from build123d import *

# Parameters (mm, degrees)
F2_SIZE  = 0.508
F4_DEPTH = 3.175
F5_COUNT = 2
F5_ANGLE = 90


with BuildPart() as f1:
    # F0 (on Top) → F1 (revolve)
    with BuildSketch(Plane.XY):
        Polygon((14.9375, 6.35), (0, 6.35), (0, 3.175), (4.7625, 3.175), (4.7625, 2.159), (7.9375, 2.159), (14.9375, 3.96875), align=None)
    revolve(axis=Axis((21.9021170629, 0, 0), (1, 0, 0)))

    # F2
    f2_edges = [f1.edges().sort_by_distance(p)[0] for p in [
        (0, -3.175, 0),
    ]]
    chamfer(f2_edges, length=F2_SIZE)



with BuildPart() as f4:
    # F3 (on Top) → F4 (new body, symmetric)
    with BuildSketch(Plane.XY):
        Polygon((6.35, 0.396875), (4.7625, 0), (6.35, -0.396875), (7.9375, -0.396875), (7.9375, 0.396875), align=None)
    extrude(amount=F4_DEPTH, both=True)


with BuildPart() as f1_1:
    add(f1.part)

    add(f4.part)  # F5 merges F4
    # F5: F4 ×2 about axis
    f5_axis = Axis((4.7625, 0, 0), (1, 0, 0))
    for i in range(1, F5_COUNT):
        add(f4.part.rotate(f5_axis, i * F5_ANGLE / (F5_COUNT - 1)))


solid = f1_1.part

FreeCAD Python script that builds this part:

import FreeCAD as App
import Part
import Sketcher

V = App.Vector
Q = App.Units.Quantity


def edges_at(feature, points):
    """Names of the edges that pass closest to the given points."""
    edges = feature.Shape.Edges
    near = lambda p: min(range(len(edges)), key=lambda i: edges[i].distToShape(Part.Vertex(*p))[0])
    return sorted({f"Edge{near(p) + 1}" for p in points})


def add_polygon(sketch, points):
    """Adds a closed chain of lines whose ends are joined by coincident constraints."""
    first, n = sketch.GeometryCount, len(points)
    for a, b in zip(points, points[1:] + points[:1]):
        sketch.addGeometry(Part.LineSegment(App.Vector(*a, 0), App.Vector(*b, 0)), False)
    for i in range(n):
        sketch.addConstraint(Sketcher.Constraint("Coincident", first + i, 2, first + (i + 1) % n, 1))

doc = App.newDocument("Part")
body = doc.addObject("PartDesign::Body", "Body")

# Sketch on XY plane
sketch1 = doc.addObject("Sketcher::SketchObject", "Sketch")
body.addObject(sketch1)
sketch1.AttachmentSupport = (doc.XY_Plane, [""])
sketch1.MapMode = "FlatFace"
add_polygon(sketch1, [(14.9, 6.3), (0, 6.3), (0, 3.2), (4.8, 3.2), (4.8, 2.2), (7.9, 2.2), (14.9, 4)])  # lines 0-6
sketch1.addConstraint([
    Sketcher.Constraint("Horizontal", 0),
    Sketcher.Constraint("Vertical", 1),
    Sketcher.Constraint("Horizontal", 2),
    Sketcher.Constraint("Vertical", 3),
    Sketcher.Constraint("Horizontal", 4),
    Sketcher.Constraint("Vertical", 6),
    Sketcher.Constraint("PointOnObject", 0, 2, -2),
    Sketcher.Constraint("Equal", 4, 1),
    Sketcher.Constraint("DistanceY", 3, 2, 3, 1, Q("0.04 in")),
    Sketcher.Constraint("DistanceX", 2, 1, 2, 2, Q("0.1875 in")),
    Sketcher.Constraint("DistanceX", 4, 1, 4, 2, Q("0.125 in")),
    Sketcher.Constraint("DistanceY", 6, 1, 6, 2, Q("0.09375 in")),
    Sketcher.Constraint("DistanceY", -1, 1, 0, 2, Q("0.25 in")),
    Sketcher.Constraint("DistanceX", 0, 2, 0, 1, 14.9375),
])
revolution = doc.addObject("PartDesign::Revolution", "Revolution")
body.addObject(revolution)
revolution.Profile = sketch1
revolution.ReferenceAxis = (sketch1, ["H_Axis"])
revolution.Angle = 360
doc.recompute()

chamfer = doc.addObject("PartDesign::Chamfer", "Chamfer")
body.addObject(chamfer)
chamfer.Base = (revolution, edges_at(revolution, [(0, -3.175, 0)]))
chamfer.Size = Q("0.02 in")
body2 = doc.addObject("PartDesign::Body", "Body001")

# Sketch on XY plane
sketch2 = doc.addObject("Sketcher::SketchObject", "Sketch001")
body2.addObject(sketch2)
sketch2.AttachmentSupport = (doc.getObject("XY_Plane001"), [""])
sketch2.MapMode = "FlatFace"
add_polygon(sketch2, [(6.3, 0.4), (4.8, 0), (6.3, -0.4), (7.9, -0.4), (7.9, 0.4)])  # lines 0-4
sketch2.addConstraint([
    Sketcher.Constraint("Horizontal", 2),
    Sketcher.Constraint("Vertical", 3),
    Sketcher.Constraint("Horizontal", 4),
    Sketcher.Constraint("Symmetric", 1, 2, 4, 2, -1),
    Sketcher.Constraint("PointOnObject", 0, 2, -1),
    Sketcher.Constraint("DistanceX", 2, 1, 2, 2, Q("0.0625 in")),
    Sketcher.Constraint("DistanceY", 3, 1, 3, 2, Q("0.03125 in")),
    Sketcher.Constraint("DistanceX", -1, 1, 1, 2, Q("0.25 in")),
    Sketcher.Constraint("DistanceX", -1, 1, 0, 2, Q("0.1875 in")),
])
pad1 = doc.addObject("PartDesign::Pad", "Pad")
body2.addObject(pad1)
pad1.Profile = sketch2
pad1.Length = Q("0.25 in")
pad1.Midplane = True
doc.recompute()

body3 = doc.addObject("PartDesign::Body", "Body002")
body3.BaseFeature = body2
boolean = doc.addObject("PartDesign::Boolean", "Boolean")
body.addObject(boolean)
boolean.Type = "Fuse"
boolean.addObjects([body3])
doc.recompute()

body2.Placement = App.Placement(V(0, 0, 0), App.Rotation(V(1, 0, 0), 90))
boolean2 = doc.addObject("PartDesign::Boolean", "Boolean001")
body.addObject(boolean2)
boolean2.Type = "Fuse"
boolean2.addObjects([body2])

doc.recompute()
